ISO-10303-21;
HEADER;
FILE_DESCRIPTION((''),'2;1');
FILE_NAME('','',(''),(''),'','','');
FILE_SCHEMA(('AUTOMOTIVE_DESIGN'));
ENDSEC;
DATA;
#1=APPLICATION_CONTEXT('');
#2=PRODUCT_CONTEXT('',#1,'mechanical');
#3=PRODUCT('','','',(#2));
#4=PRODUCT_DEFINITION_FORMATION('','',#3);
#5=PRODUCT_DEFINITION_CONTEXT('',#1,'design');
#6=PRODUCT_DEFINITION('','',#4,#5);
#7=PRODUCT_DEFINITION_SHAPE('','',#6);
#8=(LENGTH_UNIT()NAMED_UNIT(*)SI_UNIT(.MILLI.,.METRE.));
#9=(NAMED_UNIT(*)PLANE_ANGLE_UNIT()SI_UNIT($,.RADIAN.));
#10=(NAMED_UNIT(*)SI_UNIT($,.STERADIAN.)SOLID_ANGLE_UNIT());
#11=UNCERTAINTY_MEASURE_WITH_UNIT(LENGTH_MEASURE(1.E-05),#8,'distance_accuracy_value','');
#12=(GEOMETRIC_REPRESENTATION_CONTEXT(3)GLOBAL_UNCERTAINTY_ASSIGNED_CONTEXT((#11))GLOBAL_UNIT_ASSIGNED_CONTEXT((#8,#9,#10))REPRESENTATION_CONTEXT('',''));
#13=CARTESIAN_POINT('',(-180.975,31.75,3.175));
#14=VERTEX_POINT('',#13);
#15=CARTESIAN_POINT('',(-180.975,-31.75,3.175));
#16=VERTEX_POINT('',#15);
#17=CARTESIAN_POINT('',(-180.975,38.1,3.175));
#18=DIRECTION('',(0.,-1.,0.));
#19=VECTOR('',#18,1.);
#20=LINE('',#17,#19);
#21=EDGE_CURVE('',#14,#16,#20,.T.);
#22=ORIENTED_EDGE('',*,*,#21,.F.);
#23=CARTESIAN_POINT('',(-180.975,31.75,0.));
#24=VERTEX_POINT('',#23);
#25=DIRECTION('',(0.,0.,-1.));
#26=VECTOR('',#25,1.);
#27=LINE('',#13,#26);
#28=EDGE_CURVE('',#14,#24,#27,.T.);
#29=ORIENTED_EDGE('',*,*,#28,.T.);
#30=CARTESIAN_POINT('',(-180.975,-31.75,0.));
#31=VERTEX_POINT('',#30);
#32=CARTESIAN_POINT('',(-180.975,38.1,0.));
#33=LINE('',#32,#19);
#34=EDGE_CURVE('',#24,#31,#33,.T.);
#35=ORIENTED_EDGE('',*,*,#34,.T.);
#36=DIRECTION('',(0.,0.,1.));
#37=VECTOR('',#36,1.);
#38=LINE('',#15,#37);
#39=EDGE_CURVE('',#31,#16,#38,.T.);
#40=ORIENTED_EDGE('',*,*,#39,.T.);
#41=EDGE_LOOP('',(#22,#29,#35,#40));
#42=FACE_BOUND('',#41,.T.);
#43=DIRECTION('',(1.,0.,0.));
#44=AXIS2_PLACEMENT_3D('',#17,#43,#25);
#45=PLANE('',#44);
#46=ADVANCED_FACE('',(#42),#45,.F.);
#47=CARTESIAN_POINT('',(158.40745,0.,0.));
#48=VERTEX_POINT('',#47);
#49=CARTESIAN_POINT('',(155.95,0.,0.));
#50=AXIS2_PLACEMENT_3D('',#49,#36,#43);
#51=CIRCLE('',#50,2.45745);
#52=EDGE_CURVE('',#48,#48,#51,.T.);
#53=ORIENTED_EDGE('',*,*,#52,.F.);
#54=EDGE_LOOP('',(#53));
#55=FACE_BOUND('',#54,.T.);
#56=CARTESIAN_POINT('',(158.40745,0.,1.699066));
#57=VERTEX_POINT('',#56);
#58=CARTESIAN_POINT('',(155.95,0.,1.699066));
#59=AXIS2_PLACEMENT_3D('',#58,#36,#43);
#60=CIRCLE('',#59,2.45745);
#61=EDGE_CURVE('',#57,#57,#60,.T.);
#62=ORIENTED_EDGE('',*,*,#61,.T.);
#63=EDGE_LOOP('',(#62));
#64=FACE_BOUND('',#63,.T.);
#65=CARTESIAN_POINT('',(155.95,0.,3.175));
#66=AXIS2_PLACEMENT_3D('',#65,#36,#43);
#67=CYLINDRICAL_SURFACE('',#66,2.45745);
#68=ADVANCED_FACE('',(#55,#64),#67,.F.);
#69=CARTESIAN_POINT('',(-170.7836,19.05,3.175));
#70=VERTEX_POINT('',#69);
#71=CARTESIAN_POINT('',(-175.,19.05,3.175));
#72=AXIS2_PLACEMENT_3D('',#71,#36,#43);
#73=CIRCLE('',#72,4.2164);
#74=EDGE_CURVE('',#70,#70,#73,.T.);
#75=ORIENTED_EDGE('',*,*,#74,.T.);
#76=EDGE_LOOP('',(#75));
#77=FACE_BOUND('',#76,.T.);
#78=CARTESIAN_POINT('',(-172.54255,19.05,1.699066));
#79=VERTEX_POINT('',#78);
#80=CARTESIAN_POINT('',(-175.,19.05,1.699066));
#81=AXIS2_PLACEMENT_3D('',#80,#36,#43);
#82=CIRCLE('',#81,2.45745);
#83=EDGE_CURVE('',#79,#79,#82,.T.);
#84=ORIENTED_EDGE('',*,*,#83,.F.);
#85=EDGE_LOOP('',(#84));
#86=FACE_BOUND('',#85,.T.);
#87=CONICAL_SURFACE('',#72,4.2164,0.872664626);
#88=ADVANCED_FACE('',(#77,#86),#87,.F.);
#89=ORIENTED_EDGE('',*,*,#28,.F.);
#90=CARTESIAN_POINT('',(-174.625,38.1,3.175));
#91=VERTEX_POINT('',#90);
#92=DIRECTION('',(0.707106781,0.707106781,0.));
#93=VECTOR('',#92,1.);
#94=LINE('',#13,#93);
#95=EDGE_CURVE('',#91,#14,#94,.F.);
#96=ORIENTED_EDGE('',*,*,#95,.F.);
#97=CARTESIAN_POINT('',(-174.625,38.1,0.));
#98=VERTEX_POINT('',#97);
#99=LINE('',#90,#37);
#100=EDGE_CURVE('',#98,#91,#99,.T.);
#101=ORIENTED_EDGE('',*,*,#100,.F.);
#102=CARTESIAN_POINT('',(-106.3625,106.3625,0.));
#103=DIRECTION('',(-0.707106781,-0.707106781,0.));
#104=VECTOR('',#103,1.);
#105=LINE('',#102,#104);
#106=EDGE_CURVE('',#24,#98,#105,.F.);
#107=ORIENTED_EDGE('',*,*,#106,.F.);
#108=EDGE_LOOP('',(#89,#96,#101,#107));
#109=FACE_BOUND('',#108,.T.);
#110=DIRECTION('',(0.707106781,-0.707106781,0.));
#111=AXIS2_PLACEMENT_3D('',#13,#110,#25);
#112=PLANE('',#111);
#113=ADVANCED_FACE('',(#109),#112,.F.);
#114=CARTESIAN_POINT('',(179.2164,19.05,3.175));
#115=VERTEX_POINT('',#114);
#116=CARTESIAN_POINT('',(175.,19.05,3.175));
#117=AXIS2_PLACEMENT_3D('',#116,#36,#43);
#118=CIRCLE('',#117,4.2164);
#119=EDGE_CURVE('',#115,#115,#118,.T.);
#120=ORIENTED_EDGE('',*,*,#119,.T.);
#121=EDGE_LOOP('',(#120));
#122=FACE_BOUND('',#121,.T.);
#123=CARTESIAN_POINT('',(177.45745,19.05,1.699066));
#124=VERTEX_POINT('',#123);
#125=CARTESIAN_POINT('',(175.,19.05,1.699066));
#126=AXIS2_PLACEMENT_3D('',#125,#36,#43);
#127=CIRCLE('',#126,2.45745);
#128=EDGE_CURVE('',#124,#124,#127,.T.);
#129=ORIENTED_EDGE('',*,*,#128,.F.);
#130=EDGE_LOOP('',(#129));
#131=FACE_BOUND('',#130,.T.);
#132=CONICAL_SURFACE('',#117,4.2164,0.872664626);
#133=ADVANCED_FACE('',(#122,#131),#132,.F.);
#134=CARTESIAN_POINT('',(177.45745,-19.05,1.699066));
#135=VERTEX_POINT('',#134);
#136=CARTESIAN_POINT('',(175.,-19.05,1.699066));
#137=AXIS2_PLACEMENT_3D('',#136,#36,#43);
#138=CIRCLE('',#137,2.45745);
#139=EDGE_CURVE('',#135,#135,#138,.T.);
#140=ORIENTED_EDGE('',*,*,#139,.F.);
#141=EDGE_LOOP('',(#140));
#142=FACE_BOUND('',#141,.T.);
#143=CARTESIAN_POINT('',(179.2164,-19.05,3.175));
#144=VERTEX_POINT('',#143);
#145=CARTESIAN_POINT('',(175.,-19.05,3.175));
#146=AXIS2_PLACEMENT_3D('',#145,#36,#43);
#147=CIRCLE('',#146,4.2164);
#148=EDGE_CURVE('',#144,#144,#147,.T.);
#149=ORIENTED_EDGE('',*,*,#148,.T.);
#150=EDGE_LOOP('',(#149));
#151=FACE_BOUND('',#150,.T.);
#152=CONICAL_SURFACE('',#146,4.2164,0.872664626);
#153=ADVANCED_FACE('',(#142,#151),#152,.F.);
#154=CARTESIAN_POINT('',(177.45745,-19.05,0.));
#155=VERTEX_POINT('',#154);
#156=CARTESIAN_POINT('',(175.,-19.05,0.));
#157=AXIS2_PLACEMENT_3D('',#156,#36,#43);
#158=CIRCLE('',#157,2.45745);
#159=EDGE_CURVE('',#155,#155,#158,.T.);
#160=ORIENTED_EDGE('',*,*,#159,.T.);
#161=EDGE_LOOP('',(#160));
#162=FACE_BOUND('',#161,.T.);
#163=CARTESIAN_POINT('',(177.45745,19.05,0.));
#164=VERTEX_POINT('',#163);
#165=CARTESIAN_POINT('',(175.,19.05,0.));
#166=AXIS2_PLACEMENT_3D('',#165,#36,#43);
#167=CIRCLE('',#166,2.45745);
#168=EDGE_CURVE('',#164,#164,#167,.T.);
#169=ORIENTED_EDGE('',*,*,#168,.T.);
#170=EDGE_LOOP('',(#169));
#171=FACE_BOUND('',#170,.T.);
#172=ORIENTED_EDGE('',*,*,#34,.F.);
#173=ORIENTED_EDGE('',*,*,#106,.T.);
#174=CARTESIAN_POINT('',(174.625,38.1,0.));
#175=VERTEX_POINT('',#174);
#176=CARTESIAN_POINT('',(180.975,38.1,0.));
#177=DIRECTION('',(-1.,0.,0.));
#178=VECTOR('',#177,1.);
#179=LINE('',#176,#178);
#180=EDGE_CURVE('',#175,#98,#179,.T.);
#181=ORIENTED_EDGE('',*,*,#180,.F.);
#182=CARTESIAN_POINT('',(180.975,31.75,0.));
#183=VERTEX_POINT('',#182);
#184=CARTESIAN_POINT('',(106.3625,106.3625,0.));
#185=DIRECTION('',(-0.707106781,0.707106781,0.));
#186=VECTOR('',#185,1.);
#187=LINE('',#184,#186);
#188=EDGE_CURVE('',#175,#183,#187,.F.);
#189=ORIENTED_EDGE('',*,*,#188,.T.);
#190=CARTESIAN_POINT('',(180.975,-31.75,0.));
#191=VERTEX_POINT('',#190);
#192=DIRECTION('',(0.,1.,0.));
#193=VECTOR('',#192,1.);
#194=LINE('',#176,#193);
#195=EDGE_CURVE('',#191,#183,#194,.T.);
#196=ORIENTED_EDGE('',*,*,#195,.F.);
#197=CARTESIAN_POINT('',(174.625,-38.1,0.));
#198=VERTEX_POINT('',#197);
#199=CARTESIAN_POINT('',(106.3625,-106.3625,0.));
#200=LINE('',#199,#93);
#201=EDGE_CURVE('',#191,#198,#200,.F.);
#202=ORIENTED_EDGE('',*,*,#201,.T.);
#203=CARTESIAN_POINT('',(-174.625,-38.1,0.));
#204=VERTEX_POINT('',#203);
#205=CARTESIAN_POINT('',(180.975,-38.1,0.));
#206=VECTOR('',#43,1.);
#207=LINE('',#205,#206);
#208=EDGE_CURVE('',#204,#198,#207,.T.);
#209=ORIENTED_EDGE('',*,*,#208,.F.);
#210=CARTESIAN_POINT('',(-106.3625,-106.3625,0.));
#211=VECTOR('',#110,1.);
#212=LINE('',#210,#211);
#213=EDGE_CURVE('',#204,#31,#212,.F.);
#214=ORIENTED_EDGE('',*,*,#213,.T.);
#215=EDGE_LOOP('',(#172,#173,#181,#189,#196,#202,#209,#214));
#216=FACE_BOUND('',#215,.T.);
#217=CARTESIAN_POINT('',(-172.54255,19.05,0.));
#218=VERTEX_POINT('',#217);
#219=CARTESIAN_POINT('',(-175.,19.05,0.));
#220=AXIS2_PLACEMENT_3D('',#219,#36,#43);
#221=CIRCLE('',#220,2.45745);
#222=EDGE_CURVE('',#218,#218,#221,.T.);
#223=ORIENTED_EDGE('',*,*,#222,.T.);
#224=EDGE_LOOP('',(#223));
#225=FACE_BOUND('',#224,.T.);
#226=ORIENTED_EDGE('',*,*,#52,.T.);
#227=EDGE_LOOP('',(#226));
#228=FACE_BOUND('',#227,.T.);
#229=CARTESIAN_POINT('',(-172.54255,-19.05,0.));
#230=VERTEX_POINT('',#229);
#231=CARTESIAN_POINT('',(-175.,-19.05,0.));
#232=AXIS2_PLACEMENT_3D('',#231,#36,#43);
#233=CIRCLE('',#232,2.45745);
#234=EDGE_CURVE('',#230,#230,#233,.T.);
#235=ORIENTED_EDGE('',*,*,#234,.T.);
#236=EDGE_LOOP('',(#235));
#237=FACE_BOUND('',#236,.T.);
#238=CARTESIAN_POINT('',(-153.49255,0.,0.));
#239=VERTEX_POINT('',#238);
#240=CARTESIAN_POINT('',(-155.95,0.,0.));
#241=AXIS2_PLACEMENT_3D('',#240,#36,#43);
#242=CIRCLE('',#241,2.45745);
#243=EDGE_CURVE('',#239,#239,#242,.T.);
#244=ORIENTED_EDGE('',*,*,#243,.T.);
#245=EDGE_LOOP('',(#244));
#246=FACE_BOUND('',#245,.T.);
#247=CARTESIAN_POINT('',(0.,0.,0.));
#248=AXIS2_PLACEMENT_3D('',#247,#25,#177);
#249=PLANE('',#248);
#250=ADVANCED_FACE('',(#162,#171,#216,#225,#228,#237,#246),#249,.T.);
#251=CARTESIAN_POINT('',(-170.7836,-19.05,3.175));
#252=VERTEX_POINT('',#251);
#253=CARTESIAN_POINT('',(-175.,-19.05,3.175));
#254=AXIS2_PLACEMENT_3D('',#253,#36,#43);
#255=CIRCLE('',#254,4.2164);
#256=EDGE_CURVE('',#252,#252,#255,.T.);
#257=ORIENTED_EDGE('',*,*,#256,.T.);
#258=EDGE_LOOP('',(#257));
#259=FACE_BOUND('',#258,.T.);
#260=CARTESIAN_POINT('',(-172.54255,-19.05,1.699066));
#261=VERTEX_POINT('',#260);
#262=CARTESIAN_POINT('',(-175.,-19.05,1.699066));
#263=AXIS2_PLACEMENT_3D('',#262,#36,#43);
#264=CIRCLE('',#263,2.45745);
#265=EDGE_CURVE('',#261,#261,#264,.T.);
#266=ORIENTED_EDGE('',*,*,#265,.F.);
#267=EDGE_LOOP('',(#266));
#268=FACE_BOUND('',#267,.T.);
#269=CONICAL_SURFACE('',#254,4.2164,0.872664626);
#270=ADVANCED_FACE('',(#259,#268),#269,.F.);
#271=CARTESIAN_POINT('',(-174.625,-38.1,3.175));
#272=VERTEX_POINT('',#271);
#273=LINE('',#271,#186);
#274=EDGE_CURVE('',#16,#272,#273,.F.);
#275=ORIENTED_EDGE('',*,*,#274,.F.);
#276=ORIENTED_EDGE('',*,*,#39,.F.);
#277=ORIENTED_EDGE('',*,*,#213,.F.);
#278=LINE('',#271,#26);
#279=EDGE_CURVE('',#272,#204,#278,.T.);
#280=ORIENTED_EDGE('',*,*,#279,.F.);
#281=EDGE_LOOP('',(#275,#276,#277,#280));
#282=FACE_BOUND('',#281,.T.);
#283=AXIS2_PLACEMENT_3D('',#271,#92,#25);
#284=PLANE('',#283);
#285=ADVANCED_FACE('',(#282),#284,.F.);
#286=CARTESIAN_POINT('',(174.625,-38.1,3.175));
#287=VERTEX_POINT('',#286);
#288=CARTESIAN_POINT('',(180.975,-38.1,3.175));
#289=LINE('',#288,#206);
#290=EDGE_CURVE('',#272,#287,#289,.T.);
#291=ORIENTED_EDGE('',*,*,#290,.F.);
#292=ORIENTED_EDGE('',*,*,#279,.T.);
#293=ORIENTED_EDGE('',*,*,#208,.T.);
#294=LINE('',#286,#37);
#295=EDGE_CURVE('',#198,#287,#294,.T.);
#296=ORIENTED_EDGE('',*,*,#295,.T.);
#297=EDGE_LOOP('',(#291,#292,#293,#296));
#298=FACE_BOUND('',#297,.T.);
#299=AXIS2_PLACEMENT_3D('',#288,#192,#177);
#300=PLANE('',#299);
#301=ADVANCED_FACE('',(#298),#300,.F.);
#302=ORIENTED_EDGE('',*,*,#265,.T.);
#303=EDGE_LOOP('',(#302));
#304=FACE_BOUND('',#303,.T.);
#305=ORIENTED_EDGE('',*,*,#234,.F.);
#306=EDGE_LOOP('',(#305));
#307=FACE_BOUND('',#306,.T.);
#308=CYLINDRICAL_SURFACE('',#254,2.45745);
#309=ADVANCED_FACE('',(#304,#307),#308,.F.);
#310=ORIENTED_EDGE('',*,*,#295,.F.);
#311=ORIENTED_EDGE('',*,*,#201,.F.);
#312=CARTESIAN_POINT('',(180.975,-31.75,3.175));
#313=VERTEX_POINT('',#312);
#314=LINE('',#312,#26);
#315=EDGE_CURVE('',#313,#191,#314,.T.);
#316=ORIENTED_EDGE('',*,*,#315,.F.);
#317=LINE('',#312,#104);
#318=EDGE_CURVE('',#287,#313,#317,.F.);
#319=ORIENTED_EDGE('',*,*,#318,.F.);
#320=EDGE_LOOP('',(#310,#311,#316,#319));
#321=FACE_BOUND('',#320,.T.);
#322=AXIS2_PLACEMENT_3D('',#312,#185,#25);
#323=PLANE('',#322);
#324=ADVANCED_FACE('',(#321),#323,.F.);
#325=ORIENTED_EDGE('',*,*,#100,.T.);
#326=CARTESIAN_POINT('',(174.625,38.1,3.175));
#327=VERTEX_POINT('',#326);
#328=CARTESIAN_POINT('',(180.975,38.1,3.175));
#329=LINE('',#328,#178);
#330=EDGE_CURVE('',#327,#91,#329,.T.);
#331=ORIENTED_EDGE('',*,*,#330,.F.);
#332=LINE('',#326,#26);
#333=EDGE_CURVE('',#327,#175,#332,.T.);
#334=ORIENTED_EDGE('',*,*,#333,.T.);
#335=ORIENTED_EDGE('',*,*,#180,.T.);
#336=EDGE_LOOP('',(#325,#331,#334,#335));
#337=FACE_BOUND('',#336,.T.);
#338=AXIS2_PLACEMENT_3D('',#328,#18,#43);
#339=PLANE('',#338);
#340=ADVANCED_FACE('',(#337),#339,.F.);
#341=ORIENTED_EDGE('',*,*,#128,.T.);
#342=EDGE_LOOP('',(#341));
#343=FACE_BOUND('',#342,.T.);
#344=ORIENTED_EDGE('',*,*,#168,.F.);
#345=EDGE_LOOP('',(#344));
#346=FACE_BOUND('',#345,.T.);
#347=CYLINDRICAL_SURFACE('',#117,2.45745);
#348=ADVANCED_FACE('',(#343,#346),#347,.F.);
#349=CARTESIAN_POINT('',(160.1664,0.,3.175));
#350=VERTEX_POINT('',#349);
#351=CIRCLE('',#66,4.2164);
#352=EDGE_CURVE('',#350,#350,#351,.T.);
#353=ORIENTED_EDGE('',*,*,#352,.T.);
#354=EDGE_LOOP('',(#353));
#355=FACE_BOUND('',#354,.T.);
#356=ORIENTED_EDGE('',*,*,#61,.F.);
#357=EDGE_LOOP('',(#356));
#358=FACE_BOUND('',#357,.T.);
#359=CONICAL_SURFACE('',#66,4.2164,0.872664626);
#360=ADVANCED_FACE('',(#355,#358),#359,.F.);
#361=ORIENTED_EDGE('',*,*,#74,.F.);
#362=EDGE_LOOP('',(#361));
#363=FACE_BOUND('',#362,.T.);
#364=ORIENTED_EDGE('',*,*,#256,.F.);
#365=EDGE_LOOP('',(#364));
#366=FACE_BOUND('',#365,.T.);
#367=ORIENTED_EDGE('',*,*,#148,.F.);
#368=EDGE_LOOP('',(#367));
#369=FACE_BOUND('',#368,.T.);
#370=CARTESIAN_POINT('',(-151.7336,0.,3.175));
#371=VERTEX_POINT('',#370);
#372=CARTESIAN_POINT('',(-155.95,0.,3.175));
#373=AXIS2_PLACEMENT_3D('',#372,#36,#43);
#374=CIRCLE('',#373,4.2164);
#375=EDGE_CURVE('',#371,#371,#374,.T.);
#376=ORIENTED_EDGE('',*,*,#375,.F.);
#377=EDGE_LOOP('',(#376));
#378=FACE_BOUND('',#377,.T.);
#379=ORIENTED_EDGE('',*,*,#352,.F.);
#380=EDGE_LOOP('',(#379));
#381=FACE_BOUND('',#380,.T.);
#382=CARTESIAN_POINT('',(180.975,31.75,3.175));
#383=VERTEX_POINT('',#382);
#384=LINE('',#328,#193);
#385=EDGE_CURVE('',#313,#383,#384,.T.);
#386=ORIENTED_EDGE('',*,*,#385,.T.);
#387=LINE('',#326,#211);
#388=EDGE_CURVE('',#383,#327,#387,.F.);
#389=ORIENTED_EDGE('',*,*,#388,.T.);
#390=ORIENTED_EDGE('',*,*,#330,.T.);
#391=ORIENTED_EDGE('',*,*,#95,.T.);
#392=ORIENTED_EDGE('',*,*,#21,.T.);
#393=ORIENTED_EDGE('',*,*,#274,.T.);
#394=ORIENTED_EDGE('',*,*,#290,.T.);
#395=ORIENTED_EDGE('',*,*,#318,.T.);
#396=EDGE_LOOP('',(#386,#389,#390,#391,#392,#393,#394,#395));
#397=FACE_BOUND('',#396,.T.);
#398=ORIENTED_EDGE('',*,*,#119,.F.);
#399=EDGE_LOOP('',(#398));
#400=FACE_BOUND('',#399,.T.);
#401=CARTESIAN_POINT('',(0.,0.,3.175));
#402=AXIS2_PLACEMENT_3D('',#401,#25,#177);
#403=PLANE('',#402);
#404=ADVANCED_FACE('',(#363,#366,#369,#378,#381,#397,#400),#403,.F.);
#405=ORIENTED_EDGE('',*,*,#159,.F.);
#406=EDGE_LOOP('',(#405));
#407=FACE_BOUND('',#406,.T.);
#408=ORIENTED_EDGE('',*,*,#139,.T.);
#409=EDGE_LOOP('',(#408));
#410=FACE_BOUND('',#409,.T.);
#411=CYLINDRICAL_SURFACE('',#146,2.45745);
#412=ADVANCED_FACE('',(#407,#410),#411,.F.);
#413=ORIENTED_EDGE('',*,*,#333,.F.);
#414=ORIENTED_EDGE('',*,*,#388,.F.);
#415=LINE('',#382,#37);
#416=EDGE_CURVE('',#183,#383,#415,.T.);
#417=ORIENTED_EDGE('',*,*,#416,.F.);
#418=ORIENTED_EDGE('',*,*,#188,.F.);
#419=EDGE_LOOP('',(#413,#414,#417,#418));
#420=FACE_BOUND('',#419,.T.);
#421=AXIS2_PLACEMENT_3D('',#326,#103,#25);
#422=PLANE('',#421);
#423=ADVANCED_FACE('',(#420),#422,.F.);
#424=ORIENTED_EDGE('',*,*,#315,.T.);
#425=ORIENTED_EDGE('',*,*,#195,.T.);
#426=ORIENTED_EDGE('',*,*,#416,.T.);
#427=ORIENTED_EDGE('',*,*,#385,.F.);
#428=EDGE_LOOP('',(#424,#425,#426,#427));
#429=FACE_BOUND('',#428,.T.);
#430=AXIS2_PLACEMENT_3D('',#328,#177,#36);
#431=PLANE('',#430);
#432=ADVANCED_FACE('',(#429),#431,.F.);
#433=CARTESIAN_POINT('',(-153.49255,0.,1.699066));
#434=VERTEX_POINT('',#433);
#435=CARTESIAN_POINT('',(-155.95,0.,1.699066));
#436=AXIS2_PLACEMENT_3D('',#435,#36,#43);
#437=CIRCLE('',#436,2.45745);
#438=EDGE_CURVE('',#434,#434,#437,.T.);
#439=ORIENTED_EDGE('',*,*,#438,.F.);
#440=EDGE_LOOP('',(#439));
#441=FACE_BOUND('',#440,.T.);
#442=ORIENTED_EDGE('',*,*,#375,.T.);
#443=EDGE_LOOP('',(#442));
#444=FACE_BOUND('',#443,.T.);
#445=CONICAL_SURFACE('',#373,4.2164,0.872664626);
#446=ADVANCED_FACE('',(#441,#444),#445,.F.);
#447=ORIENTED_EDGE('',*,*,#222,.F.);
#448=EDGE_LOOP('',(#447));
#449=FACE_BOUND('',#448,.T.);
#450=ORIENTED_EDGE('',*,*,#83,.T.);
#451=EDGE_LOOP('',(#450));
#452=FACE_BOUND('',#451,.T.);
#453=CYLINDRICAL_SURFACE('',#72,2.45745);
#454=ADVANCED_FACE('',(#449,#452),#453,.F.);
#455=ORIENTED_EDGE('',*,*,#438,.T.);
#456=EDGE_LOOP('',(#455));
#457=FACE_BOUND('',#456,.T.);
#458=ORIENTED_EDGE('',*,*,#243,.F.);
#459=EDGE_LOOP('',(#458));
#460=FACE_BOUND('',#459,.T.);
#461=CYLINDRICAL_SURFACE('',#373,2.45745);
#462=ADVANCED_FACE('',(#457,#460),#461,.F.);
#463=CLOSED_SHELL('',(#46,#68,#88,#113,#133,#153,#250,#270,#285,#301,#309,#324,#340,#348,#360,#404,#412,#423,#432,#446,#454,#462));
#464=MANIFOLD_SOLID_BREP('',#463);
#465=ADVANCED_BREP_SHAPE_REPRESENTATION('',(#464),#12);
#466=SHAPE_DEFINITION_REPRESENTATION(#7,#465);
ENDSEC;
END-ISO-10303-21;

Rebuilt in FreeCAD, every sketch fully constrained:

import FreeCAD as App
import Part
import Sketcher
Q = App.Units.Quantity


def edges_at(feature, points):
    """Names of the edges that pass closest to the given points."""
    edges = feature.Shape.Edges
    near = lambda p: min(range(len(edges)), key=lambda i: edges[i].distToShape(Part.Vertex(*p))[0])
    return sorted({f"Edge{near(p) + 1}" for p in points})


def add_polygon(sketch, points):
    """Adds a closed chain of lines whose ends are joined by coincident constraints."""
    first, n = sketch.GeometryCount, len(points)
    for a, b in zip(points, points[1:] + points[:1]):
        sketch.addGeometry(Part.LineSegment(App.Vector(*a, 0), App.Vector(*b, 0)), False)
    for i in range(n):
        sketch.addConstraint(Sketcher.Constraint("Coincident", first + i, 2, first + (i + 1) % n, 1))

doc = App.newDocument("Part")
body = doc.addObject("PartDesign::Body", "Body")

# Sketch on XY plane
sketch1 = body.newObject("Sketcher::SketchObject", "Sketch")
sketch1.AttachmentSupport = (doc.getObject("XY_Plane"), [""])
sketch1.MapMode = "FlatFace"
add_polygon(sketch1, [(-180.975, 38.1), (-180.975, -38.1), (180.975, -38.1), (180.975, 38.1)])  # lines 0-3
sketch1.addConstraint([
    Sketcher.Constraint("Vertical", 0),
    Sketcher.Constraint("Horizontal", 1),
    Sketcher.Constraint("Vertical", 2),
    Sketcher.Constraint("Horizontal", 3),
    Sketcher.Constraint("Symmetric", 0, 2, 2, 2, -1, 1),
    Sketcher.Constraint("DistanceY", 0, 2, 0, 1, Q("3 in")),
    Sketcher.Constraint("DistanceX", 1, 1, 1, 2, Q("14.25 in")),
])
pad1 = body.newObject("PartDesign::Pad", "Pad")
pad1.Profile = sketch1
pad1.Length = Q("0.125 in")

# Sketch on YZ plane
sketch2 = body.newObject("Sketcher::SketchObject", "Sketch001")
sketch2.AttachmentSupport = (doc.getObject("YZ_Plane"), [""])
sketch2.MapMode = "FlatFace"
sketch2.AttachmentOffset = App.Placement(App.Vector(0, 0, -175), App.Rotation())
add_polygon(sketch2, [(19.05, 0), (19.05, 3.175), (14.8336, 3.175), (16.59255, 1.699066), (16.59255, 0)])  # lines 0-4
sketch2.addGeometry(Part.LineSegment(App.Vector(19.05, 3.175, 0), App.Vector(19.05, 0, 0)), True)  # axis
sketch2.addConstraint([
    Sketcher.Constraint("Vertical", 0),
    Sketcher.Constraint("Horizontal", 1),
    Sketcher.Constraint("Vertical", 3),
    Sketcher.Constraint("Horizontal", 4),
    Sketcher.Constraint("Vertical", 5),
    Sketcher.Constraint("Coincident", 5, 1, 0, 2),
    Sketcher.Constraint("PointOnObject", 3, 2, -1),
    Sketcher.Constraint("PointOnObject", 5, 2, -1),
    Sketcher.Constraint("Angle", 2, Q("-40 deg")),
    Sketcher.Constraint("DistanceX", 1, 2, 1, 1, Q("0.166 in")),
    Sketcher.Constraint("DistanceY", 0, 1, 0, 2, Q("0.125 in")),
    Sketcher.Constraint("DistanceX", -1, 1, 0, 2, Q("0.75 in")),
    Sketcher.Constraint("DistanceX", 4, 1, 4, 2, Q("2.45745 mm")),
])
groove = body.newObject("PartDesign::Groove", "Groove")
groove.Profile = sketch2
groove.ReferenceAxis = (sketch2, ["Axis0"])
groove.Angle = 360
doc.recompute()

linearpattern = body.newObject("PartDesign::LinearPattern", "LinearPattern")
linearpattern.Originals = [groove]
linearpattern.Direction = (doc.getObject("X_Axis"), [""])
linearpattern.Mode = "offset"
linearpattern.Offset = 350
linearpattern.Occurrences = 2
body.Tip = linearpattern
doc.recompute()

datumline = body.newObject("PartDesign::Line", "DatumLine")
datumline.Placement = App.Placement(App.Vector(0, 0, 0), App.Rotation(App.Vector(0, 0, 1), App.Vector(0.994127204, -0.108217847, 0)))
linearpattern2 = body.newObject("PartDesign::LinearPattern", "LinearPattern001")
linearpattern2.Originals = [groove]
linearpattern2.Direction = (datumline, [""])
linearpattern2.Mode = "offset"
linearpattern2.Offset = 352.067621
linearpattern2.Occurrences = 2
body.Tip = linearpattern2
doc.recompute()

datumline2 = body.newObject("PartDesign::Line", "DatumLine001")
datumline2.Placement = App.Placement(App.Vector(0, 0, 0), App.Rotation(App.Vector(0, 0, 1), App.Vector(0.998347439, -0.057466441, 0)))
linearpattern3 = body.newObject("PartDesign::LinearPattern", "LinearPattern002")
linearpattern3.Originals = [groove]
linearpattern3.Direction = (datumline2, [""])
linearpattern3.Mode = "offset"
linearpattern3.Offset = 331.49782
linearpattern3.Occurrences = 2
body.Tip = linearpattern3
doc.recompute()

datumline3 = body.newObject("PartDesign::Line", "DatumLine002")
datumline3.Placement = App.Placement(App.Vector(0, 0, 0), App.Rotation(App.Vector(0, 0, 1), App.Vector(0.707106781, -0.707106781, 0)))
linearpattern4 = body.newObject("PartDesign::LinearPattern", "LinearPattern003")
linearpattern4.Originals = [groove]
linearpattern4.Direction = (datumline3, [""])
linearpattern4.Mode = "offset"
linearpattern4.Offset = 26.940768
linearpattern4.Occurrences = 2
body.Tip = linearpattern4
doc.recompute()

linearpattern5 = body.newObject("PartDesign::LinearPattern", "LinearPattern004")
linearpattern5.Originals = [groove]
linearpattern5.Direction = (doc.getObject("Y_Axis"), [""])
linearpattern5.Mode = "offset"
linearpattern5.Offset = Q("1.5 in")
linearpattern5.Occurrences = 2
linearpattern5.Reversed = True
body.Tip = linearpattern5
doc.recompute()

chamfer = body.newObject("PartDesign::Chamfer", "Chamfer")
chamfer.Base = (linearpattern5, edges_at(linearpattern5, [
    (-180.975, 38.1, 1.587),
    (180.975, 38.1, 1.587),
    (180.975, -38.1, 1.587),
    (-180.975, -38.1, 1.587),
]))
chamfer.Size = Q("0.25 in")

doc.recompute()
